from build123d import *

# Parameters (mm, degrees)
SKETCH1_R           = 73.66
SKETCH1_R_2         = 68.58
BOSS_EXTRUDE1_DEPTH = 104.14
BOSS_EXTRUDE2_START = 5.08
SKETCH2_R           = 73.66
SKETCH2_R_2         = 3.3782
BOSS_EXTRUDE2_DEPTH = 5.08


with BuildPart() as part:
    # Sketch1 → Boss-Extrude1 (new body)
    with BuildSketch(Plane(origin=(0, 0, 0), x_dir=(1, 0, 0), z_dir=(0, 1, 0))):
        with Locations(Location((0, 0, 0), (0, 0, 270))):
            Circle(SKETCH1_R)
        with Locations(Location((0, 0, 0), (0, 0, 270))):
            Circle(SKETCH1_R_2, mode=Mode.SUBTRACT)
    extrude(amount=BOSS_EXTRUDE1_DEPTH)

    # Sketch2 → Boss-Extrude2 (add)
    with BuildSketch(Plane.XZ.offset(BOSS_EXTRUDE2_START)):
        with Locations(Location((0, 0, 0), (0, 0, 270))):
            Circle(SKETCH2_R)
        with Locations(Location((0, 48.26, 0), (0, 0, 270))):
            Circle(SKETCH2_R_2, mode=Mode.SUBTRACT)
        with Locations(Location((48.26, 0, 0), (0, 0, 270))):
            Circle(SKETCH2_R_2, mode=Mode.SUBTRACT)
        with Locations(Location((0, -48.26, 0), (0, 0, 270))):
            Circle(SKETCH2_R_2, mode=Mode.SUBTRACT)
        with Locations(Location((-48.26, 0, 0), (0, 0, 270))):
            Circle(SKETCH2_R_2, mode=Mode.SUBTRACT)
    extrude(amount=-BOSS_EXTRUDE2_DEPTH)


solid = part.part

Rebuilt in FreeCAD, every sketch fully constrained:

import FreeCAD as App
import Part
import Sketcher

V = App.Vector
Q = App.Units.Quantity

doc = App.newDocument("Part")
params = doc.addObject("Spreadsheet::Sheet", "Params")
for row, (alias, value) in enumerate([
    ("sketch1_diameter", "5.8 in"),
    ("sketch1_diameter2", "5.4 in"),
    ("pad1_length", "4.1 in"),
    ("sketch2_diameter", "5.8 in"),
    ("sketch2_diameter2", "0.266 in"),
    ("pad2_length", "0.2 in"),
], start=1):
    params.set(f"A{row}", alias)
    params.set(f"B{row}", "=" + value)
    params.setAlias(f"B{row}", alias)

body = doc.addObject("PartDesign::Body", "Body")

sketch1 = body.newObject("Sketcher::SketchObject", "Sketch")
sketch1.AttachmentSupport = (doc.getObject("XZ_Plane"), [""])
sketch1.MapMode = "FlatFace"
sketch1.addGeometry(Part.Circle(V(0, 0, 0), V(0, 0, 1), 74), False)
sketch1.addGeometry(Part.Circle(V(0, 0, 0), V(0, 0, 1), 69), False)
sketch1.addConstraint(Sketcher.Constraint("Coincident", 0, 3, -1, 1))
sketch1.addConstraint(Sketcher.Constraint("Coincident", 1, 3, -1, 1))
sketch1.addConstraint(Sketcher.Constraint("Diameter", 0, Q("5.8 in")))
sketch1.addConstraint(Sketcher.Constraint("Diameter", 1, Q("5.4 in")))
sketch1.setExpression("Constraints[2]", "Params.sketch1_diameter")
sketch1.setExpression("Constraints[3]", "Params.sketch1_diameter2")
pad1 = body.newObject("PartDesign::Pad", "Pad")
pad1.Profile = sketch1
pad1.setExpression("Length", "Params.pad1_length")
pad1.Reversed = True

sketch2 = body.newObject("Sketcher::SketchObject", "Sketch001")
sketch2.AttachmentSupport = (doc.getObject("XZ_Plane"), [""])
sketch2.MapMode = "FlatFace"
sketch2.AttachmentOffset = App.Placement(V(0, 0, 0.2 * 25.4), App.Rotation())
sketch2.addGeometry(Part.Circle(V(0, 0, 0), V(0, 0, 1), 73.7), False)
sketch2.addGeometry(Part.Circle(V(0, 48.3, 0), V(0, 0, 1), 3.4), False)
sketch2.addGeometry(Part.Circle(V(-48.3, 0, 0), V(0, 0, 1), 3.4), False)
sketch2.addGeometry(Part.Circle(V(48.3, 0, 0), V(0, 0, 1), 3.4), False)
sketch2.addGeometry(Part.Circle(V(0, -48.3, 0), V(0, 0, 1), 3.4), False)
sketch2.addConstraint(Sketcher.Constraint("Coincident", 0, 3, -1, 1))
sketch2.addConstraint(Sketcher.Constraint("Equal", 1, 2))
sketch2.addConstraint(Sketcher.Constraint("Equal", 2, 3))
sketch2.addConstraint(Sketcher.Constraint("Equal", 3, 4))
sketch2.addConstraint(Sketcher.Constraint("Symmetric", 2, 3, 3, 3, -1, 1))
sketch2.addConstraint(Sketcher.Constraint("Symmetric", 1, 3, 4, 3, -1, 1))
sketch2.addConstraint(Sketcher.Constraint("PointOnObject", 1, 3, -2))
sketch2.addConstraint(Sketcher.Constraint("PointOnObject", 2, 3, -1))
sketch2.addConstraint(Sketcher.Constraint("Diameter", 0, Q("5.8 in")))
sketch2.addConstraint(Sketcher.Constraint("Diameter", 1, Q("0.266 in")))
sketch2.addConstraint(Sketcher.Constraint("DistanceY", -1, 1, 1, 3, Q("1.9 in")))
sketch2.addConstraint(Sketcher.Constraint("DistanceX", 2, 3, -1, 1, Q("1.9 in")))
sketch2.setExpression("Constraints[8]", "Params.sketch2_diameter")
sketch2.setExpression("Constraints[9]", "Params.sketch2_diameter2")
pad2 = body.newObject("PartDesign::Pad", "Pad001")
pad2.Profile = sketch2
pad2.setExpression("Length", "Params.pad2_length")
pad2.Reversed = True

doc.recompute()
